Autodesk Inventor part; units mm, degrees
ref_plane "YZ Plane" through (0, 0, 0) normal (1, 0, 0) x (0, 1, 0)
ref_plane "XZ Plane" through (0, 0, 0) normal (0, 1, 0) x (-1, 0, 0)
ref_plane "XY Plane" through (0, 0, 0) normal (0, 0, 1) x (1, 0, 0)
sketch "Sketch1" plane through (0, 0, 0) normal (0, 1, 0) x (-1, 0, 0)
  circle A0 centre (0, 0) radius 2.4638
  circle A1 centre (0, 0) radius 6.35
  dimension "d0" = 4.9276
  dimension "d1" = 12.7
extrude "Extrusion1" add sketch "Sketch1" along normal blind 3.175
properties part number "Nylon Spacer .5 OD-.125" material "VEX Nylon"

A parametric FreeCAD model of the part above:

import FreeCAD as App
import Part
import Sketcher

V = App.Vector
Q = App.Units.Quantity

doc = App.newDocument("Part")
body = doc.addObject("PartDesign::Body", "Body")

sketch1 = body.newObject("Sketcher::SketchObject", "Sketch")
sketch1.AttachmentSupport = (doc.getObject("XZ_Plane"), [""])
sketch1.MapMode = "FlatFace"
sketch1.addGeometry(Part.Circle(V(0, 0, 0), V(0, 0, 1), 6.3), False)
sketch1.addGeometry(Part.Circle(V(0, 0, 0), V(0, 0, 1), 2.5), False)
sketch1.addConstraint(Sketcher.Constraint("Coincident", 0, 3, -1, 1))
sketch1.addConstraint(Sketcher.Constraint("Coincident", 1, 3, -1, 1))
sketch1.addConstraint(Sketcher.Constraint("Diameter", 0, Q("0.5 in")))
sketch1.addConstraint(Sketcher.Constraint("Diameter", 1, Q("0.194 in")))
pad1 = body.newObject("PartDesign::Pad", "Pad")
pad1.Profile = sketch1
pad1.Length = Q("0.125 in")
pad1.Reversed = True

doc.recompute()
